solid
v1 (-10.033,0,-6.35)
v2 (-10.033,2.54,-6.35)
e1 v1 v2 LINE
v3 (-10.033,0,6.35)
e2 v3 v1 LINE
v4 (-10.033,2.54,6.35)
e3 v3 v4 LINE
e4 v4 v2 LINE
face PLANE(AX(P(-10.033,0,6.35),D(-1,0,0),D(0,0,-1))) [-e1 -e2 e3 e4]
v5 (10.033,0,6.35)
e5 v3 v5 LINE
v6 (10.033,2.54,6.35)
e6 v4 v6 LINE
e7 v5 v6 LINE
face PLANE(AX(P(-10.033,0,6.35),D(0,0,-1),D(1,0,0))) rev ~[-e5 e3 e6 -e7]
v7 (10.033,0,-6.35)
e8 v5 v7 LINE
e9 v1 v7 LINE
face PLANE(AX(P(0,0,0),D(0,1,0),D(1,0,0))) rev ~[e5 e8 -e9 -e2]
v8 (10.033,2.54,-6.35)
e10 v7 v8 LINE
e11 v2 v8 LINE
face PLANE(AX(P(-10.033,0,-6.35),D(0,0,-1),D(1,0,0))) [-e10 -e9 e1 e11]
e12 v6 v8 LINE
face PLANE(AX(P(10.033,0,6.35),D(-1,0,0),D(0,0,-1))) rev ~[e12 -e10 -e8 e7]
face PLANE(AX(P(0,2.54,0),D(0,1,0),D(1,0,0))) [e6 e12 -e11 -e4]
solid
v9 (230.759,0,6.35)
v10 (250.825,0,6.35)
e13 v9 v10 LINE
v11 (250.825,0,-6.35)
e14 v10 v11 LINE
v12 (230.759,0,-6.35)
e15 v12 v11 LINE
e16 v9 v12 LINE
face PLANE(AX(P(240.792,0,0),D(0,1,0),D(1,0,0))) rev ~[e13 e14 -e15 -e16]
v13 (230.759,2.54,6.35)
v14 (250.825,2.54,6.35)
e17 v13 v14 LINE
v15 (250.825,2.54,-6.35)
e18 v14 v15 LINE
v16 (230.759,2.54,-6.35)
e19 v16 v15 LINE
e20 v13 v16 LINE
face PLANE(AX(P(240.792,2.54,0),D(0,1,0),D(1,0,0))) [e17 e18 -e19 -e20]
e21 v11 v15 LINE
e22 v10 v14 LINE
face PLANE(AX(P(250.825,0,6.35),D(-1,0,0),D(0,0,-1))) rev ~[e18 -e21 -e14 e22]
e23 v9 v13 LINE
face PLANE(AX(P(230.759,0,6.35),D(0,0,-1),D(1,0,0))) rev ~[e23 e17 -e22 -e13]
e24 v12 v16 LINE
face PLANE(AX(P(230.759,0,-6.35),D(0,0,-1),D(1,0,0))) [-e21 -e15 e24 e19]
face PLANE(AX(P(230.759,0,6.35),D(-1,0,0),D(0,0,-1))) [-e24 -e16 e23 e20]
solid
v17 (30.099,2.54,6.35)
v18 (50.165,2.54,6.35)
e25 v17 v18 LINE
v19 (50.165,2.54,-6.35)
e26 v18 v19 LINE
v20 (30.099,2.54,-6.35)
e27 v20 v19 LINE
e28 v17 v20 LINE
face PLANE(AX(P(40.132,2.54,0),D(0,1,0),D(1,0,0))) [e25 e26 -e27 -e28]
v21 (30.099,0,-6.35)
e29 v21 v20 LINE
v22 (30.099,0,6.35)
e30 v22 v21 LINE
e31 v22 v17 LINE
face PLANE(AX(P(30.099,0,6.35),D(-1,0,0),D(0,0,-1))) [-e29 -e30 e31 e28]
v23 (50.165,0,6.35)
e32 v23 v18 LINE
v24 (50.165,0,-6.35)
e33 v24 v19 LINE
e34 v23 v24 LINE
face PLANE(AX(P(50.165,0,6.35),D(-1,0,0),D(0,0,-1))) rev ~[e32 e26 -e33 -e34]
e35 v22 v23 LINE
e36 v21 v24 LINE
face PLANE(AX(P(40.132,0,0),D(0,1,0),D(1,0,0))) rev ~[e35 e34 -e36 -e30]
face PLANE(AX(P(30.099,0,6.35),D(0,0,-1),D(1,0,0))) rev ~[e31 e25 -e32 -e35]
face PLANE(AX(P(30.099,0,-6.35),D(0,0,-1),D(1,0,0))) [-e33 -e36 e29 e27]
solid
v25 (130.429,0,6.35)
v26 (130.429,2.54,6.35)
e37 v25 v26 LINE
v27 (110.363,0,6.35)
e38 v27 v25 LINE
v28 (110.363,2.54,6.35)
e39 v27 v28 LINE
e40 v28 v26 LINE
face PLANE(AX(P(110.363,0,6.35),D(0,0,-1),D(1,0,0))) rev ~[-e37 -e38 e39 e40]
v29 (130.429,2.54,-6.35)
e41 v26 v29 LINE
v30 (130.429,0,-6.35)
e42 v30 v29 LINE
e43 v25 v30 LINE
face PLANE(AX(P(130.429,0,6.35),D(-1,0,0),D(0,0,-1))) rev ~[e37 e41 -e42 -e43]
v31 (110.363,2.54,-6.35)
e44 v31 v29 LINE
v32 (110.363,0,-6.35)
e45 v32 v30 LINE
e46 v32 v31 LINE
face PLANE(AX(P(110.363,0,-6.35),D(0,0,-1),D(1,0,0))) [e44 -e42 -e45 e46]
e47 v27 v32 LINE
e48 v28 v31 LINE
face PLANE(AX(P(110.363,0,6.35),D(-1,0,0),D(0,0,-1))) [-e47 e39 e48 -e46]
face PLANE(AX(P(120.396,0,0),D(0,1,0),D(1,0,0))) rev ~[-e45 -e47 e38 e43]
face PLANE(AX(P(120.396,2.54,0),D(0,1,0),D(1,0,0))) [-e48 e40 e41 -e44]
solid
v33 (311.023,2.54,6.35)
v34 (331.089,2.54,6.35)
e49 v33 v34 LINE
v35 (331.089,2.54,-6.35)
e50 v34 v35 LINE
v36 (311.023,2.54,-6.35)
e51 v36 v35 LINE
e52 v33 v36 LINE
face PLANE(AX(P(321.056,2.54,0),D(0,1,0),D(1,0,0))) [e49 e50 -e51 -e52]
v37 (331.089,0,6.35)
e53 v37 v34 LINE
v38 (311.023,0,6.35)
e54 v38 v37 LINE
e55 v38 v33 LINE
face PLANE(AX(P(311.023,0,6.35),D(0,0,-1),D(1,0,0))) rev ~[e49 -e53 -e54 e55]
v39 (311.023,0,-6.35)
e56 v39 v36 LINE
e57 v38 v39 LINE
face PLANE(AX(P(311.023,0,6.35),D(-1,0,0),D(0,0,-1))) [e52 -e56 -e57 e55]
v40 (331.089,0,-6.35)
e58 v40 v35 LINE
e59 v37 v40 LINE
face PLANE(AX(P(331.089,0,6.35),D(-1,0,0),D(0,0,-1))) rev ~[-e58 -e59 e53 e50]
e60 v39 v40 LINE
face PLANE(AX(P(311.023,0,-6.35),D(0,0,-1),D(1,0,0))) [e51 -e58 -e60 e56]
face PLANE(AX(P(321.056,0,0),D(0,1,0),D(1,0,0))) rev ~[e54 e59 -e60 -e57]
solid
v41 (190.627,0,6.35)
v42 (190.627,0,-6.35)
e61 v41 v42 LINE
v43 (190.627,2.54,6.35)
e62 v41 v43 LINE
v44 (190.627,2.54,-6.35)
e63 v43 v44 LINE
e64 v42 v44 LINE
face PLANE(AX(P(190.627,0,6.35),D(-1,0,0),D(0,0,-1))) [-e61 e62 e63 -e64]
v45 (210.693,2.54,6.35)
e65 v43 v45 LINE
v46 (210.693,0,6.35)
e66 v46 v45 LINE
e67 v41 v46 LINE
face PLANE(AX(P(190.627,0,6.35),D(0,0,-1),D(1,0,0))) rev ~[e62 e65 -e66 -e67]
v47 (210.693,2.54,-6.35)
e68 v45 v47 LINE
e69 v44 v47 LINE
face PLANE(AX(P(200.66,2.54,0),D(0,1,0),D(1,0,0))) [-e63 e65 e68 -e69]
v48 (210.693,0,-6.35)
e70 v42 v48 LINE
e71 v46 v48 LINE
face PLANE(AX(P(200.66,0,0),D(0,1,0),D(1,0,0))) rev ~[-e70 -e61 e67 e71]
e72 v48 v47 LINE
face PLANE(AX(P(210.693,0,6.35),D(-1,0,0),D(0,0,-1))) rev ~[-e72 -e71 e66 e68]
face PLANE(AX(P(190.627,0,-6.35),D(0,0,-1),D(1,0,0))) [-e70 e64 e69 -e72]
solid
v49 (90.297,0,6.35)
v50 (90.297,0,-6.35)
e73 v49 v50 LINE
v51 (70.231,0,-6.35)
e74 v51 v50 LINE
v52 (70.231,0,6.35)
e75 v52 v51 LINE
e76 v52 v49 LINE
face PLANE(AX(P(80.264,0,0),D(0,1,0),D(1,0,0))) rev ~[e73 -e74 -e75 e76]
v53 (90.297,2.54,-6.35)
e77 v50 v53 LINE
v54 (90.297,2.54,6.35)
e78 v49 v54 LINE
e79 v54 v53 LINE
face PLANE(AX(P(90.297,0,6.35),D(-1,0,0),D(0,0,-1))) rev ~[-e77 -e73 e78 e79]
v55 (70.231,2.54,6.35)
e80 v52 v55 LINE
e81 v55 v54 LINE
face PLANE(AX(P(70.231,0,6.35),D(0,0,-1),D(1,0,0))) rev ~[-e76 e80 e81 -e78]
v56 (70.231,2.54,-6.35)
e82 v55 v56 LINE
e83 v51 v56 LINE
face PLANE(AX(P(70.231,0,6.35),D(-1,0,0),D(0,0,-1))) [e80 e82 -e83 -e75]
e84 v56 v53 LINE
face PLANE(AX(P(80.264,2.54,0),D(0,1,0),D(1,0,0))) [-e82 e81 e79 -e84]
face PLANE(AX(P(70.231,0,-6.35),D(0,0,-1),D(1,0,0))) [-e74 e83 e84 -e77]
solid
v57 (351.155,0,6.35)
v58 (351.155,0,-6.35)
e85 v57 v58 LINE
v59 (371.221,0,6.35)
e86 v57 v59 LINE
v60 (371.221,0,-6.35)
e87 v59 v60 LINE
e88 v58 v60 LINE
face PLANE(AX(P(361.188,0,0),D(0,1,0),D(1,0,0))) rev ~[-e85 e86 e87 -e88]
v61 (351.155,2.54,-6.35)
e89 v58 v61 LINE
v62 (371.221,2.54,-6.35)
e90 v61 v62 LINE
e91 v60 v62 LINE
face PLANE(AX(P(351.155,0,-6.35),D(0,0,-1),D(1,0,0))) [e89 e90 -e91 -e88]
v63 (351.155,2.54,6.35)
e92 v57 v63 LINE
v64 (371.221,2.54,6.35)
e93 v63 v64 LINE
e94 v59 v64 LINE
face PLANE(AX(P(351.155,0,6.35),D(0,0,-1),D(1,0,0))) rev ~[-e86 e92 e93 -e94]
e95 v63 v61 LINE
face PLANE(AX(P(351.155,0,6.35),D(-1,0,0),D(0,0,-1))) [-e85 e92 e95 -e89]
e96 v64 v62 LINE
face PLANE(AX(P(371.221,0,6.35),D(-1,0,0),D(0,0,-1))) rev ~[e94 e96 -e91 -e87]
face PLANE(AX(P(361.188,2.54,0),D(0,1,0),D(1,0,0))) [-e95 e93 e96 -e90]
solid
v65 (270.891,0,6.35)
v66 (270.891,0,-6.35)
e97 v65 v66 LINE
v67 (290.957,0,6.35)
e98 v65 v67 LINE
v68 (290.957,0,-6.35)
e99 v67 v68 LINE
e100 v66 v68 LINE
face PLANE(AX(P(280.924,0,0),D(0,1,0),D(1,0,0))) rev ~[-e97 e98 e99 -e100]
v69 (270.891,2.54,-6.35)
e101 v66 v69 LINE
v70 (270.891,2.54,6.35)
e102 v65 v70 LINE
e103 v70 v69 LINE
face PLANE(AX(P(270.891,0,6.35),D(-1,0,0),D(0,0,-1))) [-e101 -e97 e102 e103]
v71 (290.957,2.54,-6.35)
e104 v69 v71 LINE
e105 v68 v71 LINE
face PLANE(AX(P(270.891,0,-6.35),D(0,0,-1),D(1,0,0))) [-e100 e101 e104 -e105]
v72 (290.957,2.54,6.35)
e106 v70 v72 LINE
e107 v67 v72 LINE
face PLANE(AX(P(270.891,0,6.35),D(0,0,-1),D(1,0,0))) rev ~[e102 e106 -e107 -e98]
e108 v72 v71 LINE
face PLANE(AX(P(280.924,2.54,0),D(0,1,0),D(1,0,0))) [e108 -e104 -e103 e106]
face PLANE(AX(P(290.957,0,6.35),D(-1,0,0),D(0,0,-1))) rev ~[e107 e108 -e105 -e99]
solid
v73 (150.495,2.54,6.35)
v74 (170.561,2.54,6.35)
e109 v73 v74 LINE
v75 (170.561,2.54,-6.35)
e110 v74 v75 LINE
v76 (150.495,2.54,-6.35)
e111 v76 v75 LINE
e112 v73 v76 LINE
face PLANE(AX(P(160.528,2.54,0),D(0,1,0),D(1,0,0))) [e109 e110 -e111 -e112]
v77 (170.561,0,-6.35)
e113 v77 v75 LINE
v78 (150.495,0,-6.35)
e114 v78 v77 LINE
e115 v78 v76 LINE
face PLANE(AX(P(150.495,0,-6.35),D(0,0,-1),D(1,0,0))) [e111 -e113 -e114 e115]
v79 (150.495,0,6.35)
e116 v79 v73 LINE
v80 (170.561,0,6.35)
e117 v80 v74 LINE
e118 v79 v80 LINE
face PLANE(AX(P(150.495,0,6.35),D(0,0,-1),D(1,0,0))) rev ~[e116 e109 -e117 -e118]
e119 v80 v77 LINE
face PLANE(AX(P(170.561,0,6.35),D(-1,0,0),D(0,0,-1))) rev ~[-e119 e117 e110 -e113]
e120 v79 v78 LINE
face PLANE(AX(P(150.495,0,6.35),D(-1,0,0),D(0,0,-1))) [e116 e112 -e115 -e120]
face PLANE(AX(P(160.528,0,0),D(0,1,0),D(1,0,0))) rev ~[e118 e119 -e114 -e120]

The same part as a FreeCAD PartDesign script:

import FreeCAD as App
import Part
import Sketcher
Q = App.Units.Quantity


def add_polygon(sketch, points):
    """Adds a closed chain of lines whose ends are joined by coincident constraints."""
    first, n = sketch.GeometryCount, len(points)
    for a, b in zip(points, points[1:] + points[:1]):
        sketch.addGeometry(Part.LineSegment(App.Vector(*a, 0), App.Vector(*b, 0)), False)
    for i in range(n):
        sketch.addConstraint(Sketcher.Constraint("Coincident", first + i, 2, first + (i + 1) % n, 1))

doc = App.newDocument("Part")
body = doc.addObject("PartDesign::Body", "Body")

# Sketch on XZ plane
sketch1 = body.newObject("Sketcher::SketchObject", "Sketch")
sketch1.AttachmentSupport = (doc.getObject("XZ_Plane"), [""])
sketch1.MapMode = "FlatFace"
add_polygon(sketch1, [(30, -6), (30, 6), (50, 6), (50, -6)])  # lines 0-3
sketch1.addConstraint([
    Sketcher.Constraint("Vertical", 0),
    Sketcher.Constraint("Horizontal", 1),
    Sketcher.Constraint("Vertical", 2),
    Sketcher.Constraint("Horizontal", 3),
    Sketcher.Constraint("DistanceY", 0, 1, 0, 2, Q("0.5 in")),
    Sketcher.Constraint("DistanceX", 1, 1, 1, 2, Q("0.79 in")),
    Sketcher.Constraint("DistanceY", -1, 1, 0, 2, Q("0.25 in")),
    Sketcher.Constraint("DistanceX", -1, 1, 0, 2, Q("1.185 in")),
])
pad1 = body.newObject("PartDesign::Pad", "Pad")
pad1.Profile = sketch1
pad1.Length = Q("0.1 in")
pad1.Reversed = True
body2 = doc.addObject("PartDesign::Body", "Body001")

# Sketch on XZ plane
sketch2 = body2.newObject("Sketcher::SketchObject", "Sketch001")
sketch2.AttachmentSupport = (doc.getObject("XZ_Plane001"), [""])
sketch2.MapMode = "FlatFace"
add_polygon(sketch2, [(-10, -6), (-10, 6), (10, 6), (10, -6)])  # lines 0-3
sketch2.addConstraint([
    Sketcher.Constraint("Vertical", 0),
    Sketcher.Constraint("Horizontal", 1),
    Sketcher.Constraint("Vertical", 2),
    Sketcher.Constraint("Horizontal", 3),
    Sketcher.Constraint("Symmetric", 0, 2, 2, 2, -1, 1),
    Sketcher.Constraint("DistanceY", 0, 1, 0, 2, Q("0.5 in")),
    Sketcher.Constraint("DistanceX", 1, 1, 1, 2, Q("0.79 in")),
])
pad2 = body2.newObject("PartDesign::Pad", "Pad001")
pad2.Profile = sketch2
pad2.Length = Q("0.1 in")
pad2.Reversed = True
body3 = doc.addObject("PartDesign::Body", "Body002")

# Sketch on XZ plane
sketch3 = body3.newObject("Sketcher::SketchObject", "Sketch002")
sketch3.AttachmentSupport = (doc.getObject("XZ_Plane002"), [""])
sketch3.MapMode = "FlatFace"
add_polygon(sketch3, [(70, -6), (70, 6), (90, 6), (90, -6)])  # lines 0-3
sketch3.addConstraint([
    Sketcher.Constraint("Vertical", 0),
    Sketcher.Constraint("Horizontal", 1),
    Sketcher.Constraint("Vertical", 2),
    Sketcher.Constraint("Horizontal", 3),
    Sketcher.Constraint("DistanceY", 0, 1, 0, 2, Q("0.5 in")),
    Sketcher.Constraint("DistanceX", 1, 1, 1, 2, Q("0.79 in")),
    Sketcher.Constraint("DistanceY", -1, 1, 0, 2, Q("0.25 in")),
    Sketcher.Constraint("DistanceX", -1, 1, 0, 2, Q("2.765 in")),
])
pad3 = body3.newObject("PartDesign::Pad", "Pad002")
pad3.Profile = sketch3
pad3.Length = Q("0.1 in")
pad3.Reversed = True
body4 = doc.addObject("PartDesign::Body", "Body003")

# Sketch on XZ plane
sketch4 = body4.newObject("Sketcher::SketchObject", "Sketch003")
sketch4.AttachmentSupport = (doc.getObject("XZ_Plane003"), [""])
sketch4.MapMode = "FlatFace"
add_polygon(sketch4, [(110, -6), (110, 6), (130, 6), (130, -6)])  # lines 0-3
sketch4.addConstraint([
    Sketcher.Constraint("Vertical", 0),
    Sketcher.Constraint("Horizontal", 1),
    Sketcher.Constraint("Vertical", 2),
    Sketcher.Constraint("Horizontal", 3),
    Sketcher.Constraint("DistanceY", 0, 1, 0, 2, Q("0.5 in")),
    Sketcher.Constraint("DistanceX", 1, 1, 1, 2, Q("0.79 in")),
    Sketcher.Constraint("DistanceY", -1, 1, 0, 2, Q("0.25 in")),
    Sketcher.Constraint("DistanceX", -1, 1, 0, 2, Q("4.345 in")),
])
pad4 = body4.newObject("PartDesign::Pad", "Pad003")
pad4.Profile = sketch4
pad4.Length = Q("0.1 in")
pad4.Reversed = True
body5 = doc.addObject("PartDesign::Body", "Body004")

# Sketch on XZ plane
sketch5 = body5.newObject("Sketcher::SketchObject", "Sketch004")
sketch5.AttachmentSupport = (doc.getObject("XZ_Plane004"), [""])
sketch5.MapMode = "FlatFace"
add_polygon(sketch5, [(150, -6), (150, 6), (171, 6), (171, -6)])  # lines 0-3
sketch5.addConstraint([
    Sketcher.Constraint("Vertical", 0),
    Sketcher.Constraint("Horizontal", 1),
    Sketcher.Constraint("Vertical", 2),
    Sketcher.Constraint("Horizontal", 3),
    Sketcher.Constraint("DistanceY", 0, 1, 0, 2, Q("0.5 in")),
    Sketcher.Constraint("DistanceX", 1, 1, 1, 2, Q("0.79 in")),
    Sketcher.Constraint("DistanceY", -1, 1, 0, 2, Q("0.25 in")),
    Sketcher.Constraint("DistanceX", -1, 1, 0, 2, Q("5.925 in")),
])
pad5 = body5.newObject("PartDesign::Pad", "Pad004")
pad5.Profile = sketch5
pad5.Length = Q("0.1 in")
pad5.Reversed = True
body6 = doc.addObject("PartDesign::Body", "Body005")

# Sketch on XZ plane
sketch6 = body6.newObject("Sketcher::SketchObject", "Sketch005")
sketch6.AttachmentSupport = (doc.getObject("XZ_Plane005"), [""])
sketch6.MapMode = "FlatFace"
add_polygon(sketch6, [(191, -6), (191, 6), (211, 6), (211, -6)])  # lines 0-3
sketch6.addConstraint([
    Sketcher.Constraint("Vertical", 0),
    Sketcher.Constraint("Horizontal", 1),
    Sketcher.Constraint("Vertical", 2),
    Sketcher.Constraint("Horizontal", 3),
    Sketcher.Constraint("DistanceY", 0, 1, 0, 2, Q("0.5 in")),
    Sketcher.Constraint("DistanceX", 1, 1, 1, 2, Q("0.79 in")),
    Sketcher.Constraint("DistanceY", -1, 1, 0, 2, Q("0.25 in")),
    Sketcher.Constraint("DistanceX", -1, 1, 0, 2, Q("7.505 in")),
])
pad6 = body6.newObject("PartDesign::Pad", "Pad005")
pad6.Profile = sketch6
pad6.Length = Q("0.1 in")
pad6.Reversed = True
body7 = doc.addObject("PartDesign::Body", "Body006")

# Sketch on XZ plane
sketch7 = body7.newObject("Sketcher::SketchObject", "Sketch006")
sketch7.AttachmentSupport = (doc.getObject("XZ_Plane006"), [""])
sketch7.MapMode = "FlatFace"
add_polygon(sketch7, [(231, -6), (231, 6), (251, 6), (251, -6)])  # lines 0-3
sketch7.addConstraint([
    Sketcher.Constraint("Vertical", 0),
    Sketcher.Constraint("Horizontal", 1),
    Sketcher.Constraint("Vertical", 2),
    Sketcher.Constraint("Horizontal", 3),
    Sketcher.Constraint("DistanceY", 0, 1, 0, 2, Q("0.5 in")),
    Sketcher.Constraint("DistanceX", 1, 1, 1, 2, Q("0.79 in")),
    Sketcher.Constraint("DistanceY", -1, 1, 0, 2, Q("0.25 in")),
    Sketcher.Constraint("DistanceX", -1, 1, 0, 2, Q("9.085 in")),
])
pad7 = body7.newObject("PartDesign::Pad", "Pad006")
pad7.Profile = sketch7
pad7.Length = Q("0.1 in")
pad7.Reversed = True
body8 = doc.addObject("PartDesign::Body", "Body007")

# Sketch on XZ plane
sketch8 = body8.newObject("Sketcher::SketchObject", "Sketch007")
sketch8.AttachmentSupport = (doc.getObject("XZ_Plane007"), [""])
sketch8.MapMode = "FlatFace"
add_polygon(sketch8, [(271, -6), (271, 6), (291, 6), (291, -6)])  # lines 0-3
sketch8.addConstraint([
    Sketcher.Constraint("Vertical", 0),
    Sketcher.Constraint("Horizontal", 1),
    Sketcher.Constraint("Vertical", 2),
    Sketcher.Constraint("Horizontal", 3),
    Sketcher.Constraint("DistanceY", 0, 1, 0, 2, Q("0.5 in")),
    Sketcher.Constraint("DistanceX", 1, 1, 1, 2, Q("0.79 in")),
    Sketcher.Constraint("DistanceY", -1, 1, 0, 2, Q("0.25 in")),
    Sketcher.Constraint("DistanceX", -1, 1, 0, 2, Q("10.665 in")),
])
pad8 = body8.newObject("PartDesign::Pad", "Pad007")
pad8.Profile = sketch8
pad8.Length = Q("0.1 in")
pad8.Reversed = True
body9 = doc.addObject("PartDesign::Body", "Body008")

# Sketch on XZ plane
sketch9 = body9.newObject("Sketcher::SketchObject", "Sketch008")
sketch9.AttachmentSupport = (doc.getObject("XZ_Plane008"), [""])
sketch9.MapMode = "FlatFace"
add_polygon(sketch9, [(311, -6), (311, 6), (331, 6), (331, -6)])  # lines 0-3
sketch9.addConstraint([
    Sketcher.Constraint("Vertical", 0),
    Sketcher.Constraint("Horizontal", 1),
    Sketcher.Constraint("Vertical", 2),
    Sketcher.Constraint("Horizontal", 3),
    Sketcher.Constraint("DistanceY", 0, 1, 0, 2, Q("0.5 in")),
    Sketcher.Constraint("DistanceX", 1, 1, 1, 2, Q("0.79 in")),
    Sketcher.Constraint("DistanceY", -1, 1, 0, 2, Q("0.25 in")),
    Sketcher.Constraint("DistanceX", -1, 1, 0, 2, Q("12.245 in")),
])
pad9 = body9.newObject("PartDesign::Pad", "Pad008")
pad9.Profile = sketch9
pad9.Length = Q("0.1 in")
pad9.Reversed = True
body10 = doc.addObject("PartDesign::Body", "Body009")

# Sketch on XZ plane
sketch10 = body10.newObject("Sketcher::SketchObject", "Sketch009")
sketch10.AttachmentSupport = (doc.getObject("XZ_Plane009"), [""])
sketch10.MapMode = "FlatFace"
add_polygon(sketch10, [(351, -6), (351, 6), (371, 6), (371, -6)])  # lines 0-3
sketch10.addConstraint([
    Sketcher.Constraint("Vertical", 0),
    Sketcher.Constraint("Horizontal", 1),
    Sketcher.Constraint("Vertical", 2),
    Sketcher.Constraint("Horizontal", 3),
    Sketcher.Constraint("DistanceY", 0, 1, 0, 2, Q("0.5 in")),
    Sketcher.Constraint("DistanceX", 1, 1, 1, 2, Q("0.79 in")),
    Sketcher.Constraint("DistanceY", -1, 1, 0, 2, Q("0.25 in")),
    Sketcher.Constraint("DistanceX", -1, 1, 0, 2, Q("13.825 in")),
])
pad10 = body10.newObject("PartDesign::Pad", "Pad009")
pad10.Profile = sketch10
pad10.Length = Q("0.1 in")
pad10.Reversed = True

doc.recompute()
